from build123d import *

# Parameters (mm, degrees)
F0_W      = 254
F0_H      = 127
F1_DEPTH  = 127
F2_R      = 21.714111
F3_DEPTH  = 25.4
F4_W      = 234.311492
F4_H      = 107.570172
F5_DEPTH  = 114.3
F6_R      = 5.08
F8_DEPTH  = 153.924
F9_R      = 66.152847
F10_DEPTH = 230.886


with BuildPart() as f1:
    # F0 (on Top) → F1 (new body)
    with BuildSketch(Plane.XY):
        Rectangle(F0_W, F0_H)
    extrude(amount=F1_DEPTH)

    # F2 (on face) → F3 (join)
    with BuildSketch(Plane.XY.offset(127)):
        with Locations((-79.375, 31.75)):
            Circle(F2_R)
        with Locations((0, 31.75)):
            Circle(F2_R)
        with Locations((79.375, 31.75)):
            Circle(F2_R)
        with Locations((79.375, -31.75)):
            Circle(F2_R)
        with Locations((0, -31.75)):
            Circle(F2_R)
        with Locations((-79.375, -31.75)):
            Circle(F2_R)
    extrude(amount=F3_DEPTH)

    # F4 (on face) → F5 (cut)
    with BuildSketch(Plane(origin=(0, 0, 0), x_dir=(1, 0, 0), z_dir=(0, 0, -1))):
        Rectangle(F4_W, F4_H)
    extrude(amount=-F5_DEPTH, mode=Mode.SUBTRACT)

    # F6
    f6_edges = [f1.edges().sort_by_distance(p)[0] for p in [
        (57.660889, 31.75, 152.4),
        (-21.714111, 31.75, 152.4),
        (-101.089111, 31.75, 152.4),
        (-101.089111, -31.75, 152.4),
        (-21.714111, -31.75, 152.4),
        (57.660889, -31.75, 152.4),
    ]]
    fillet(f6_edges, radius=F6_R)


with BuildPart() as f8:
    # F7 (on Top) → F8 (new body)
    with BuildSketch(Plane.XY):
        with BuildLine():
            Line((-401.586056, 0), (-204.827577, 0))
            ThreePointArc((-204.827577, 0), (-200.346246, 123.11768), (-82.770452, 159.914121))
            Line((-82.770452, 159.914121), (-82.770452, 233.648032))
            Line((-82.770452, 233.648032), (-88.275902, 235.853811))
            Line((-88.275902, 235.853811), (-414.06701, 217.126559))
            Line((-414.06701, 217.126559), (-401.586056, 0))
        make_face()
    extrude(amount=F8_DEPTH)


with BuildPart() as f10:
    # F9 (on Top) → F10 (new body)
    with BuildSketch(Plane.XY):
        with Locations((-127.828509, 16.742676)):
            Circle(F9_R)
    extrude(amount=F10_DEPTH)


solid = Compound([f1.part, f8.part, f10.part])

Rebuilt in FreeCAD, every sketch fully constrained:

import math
import FreeCAD as App
import Part
import Sketcher
from FreeCAD import Vector
Q = App.Units.Quantity


def edges_at(feature, points):
    """Names of the edges that pass closest to the given points."""
    edges = feature.Shape.Edges
    near = lambda p: min(range(len(edges)), key=lambda i: edges[i].distToShape(Part.Vertex(*p))[0])
    return sorted({f"Edge{near(p) + 1}" for p in points})


def add_polygon(sketch, points):
    """Adds a closed chain of lines whose ends are joined by coincident constraints."""
    first, n = sketch.GeometryCount, len(points)
    for a, b in zip(points, points[1:] + points[:1]):
        sketch.addGeometry(Part.LineSegment(App.Vector(*a, 0), App.Vector(*b, 0)), False)
    for i in range(n):
        sketch.addConstraint(Sketcher.Constraint("Coincident", first + i, 2, first + (i + 1) % n, 1))

doc = App.newDocument("Part")
params = doc.addObject("Spreadsheet::Sheet", "Params")
for row, (alias, value) in enumerate([
    ("sketch1_width", "10 in"),
    ("sketch1_height", "5 in"),
    ("pad1_length", "5 in"),
    ("pad2_length", "1 in"),
    ("pocket1_length", "4.5 in"),
    ("fillet_radius", "0.2 in"),
    ("pad3_length", "6.06 in"),
    ("pad4_length", "9.09 in"),
], start=1):
    params.set(f"A{row}", alias)
    params.set(f"B{row}", "=" + value)
    params.setAlias(f"B{row}", alias)

body = doc.addObject("PartDesign::Body", "Body")

# Sketch on XY plane
sketch1 = body.newObject("Sketcher::SketchObject", "Sketch")
sketch1.AttachmentSupport = (doc.getObject("XY_Plane"), [""])
sketch1.MapMode = "FlatFace"
add_polygon(sketch1, [(-127, 64), (-127, -64), (127, -64), (127, 64)])  # lines 0-3
sketch1.addConstraint([
    Sketcher.Constraint("Vertical", 0),
    Sketcher.Constraint("Horizontal", 1),
    Sketcher.Constraint("Vertical", 2),
    Sketcher.Constraint("Horizontal", 3),
    Sketcher.Constraint("Symmetric", 0, 2, 2, 2, -1, 1),
    Sketcher.Constraint("DistanceX", 1, 1, 1, 2, Q("10 in")),
    Sketcher.Constraint("DistanceY", 0, 2, 0, 1, Q("5 in")),
])
sketch1.setExpression("Constraints[9]", "Params.sketch1_width")
sketch1.setExpression("Constraints[10]", "Params.sketch1_height")
pad1 = body.newObject("PartDesign::Pad", "Pad")
pad1.Profile = sketch1
pad1.setExpression("Length", "Params.pad1_length")

# Sketch on XY plane
sketch2 = body.newObject("Sketcher::SketchObject", "Sketch001")
sketch2.AttachmentSupport = (doc.getObject("XY_Plane"), [""])
sketch2.MapMode = "FlatFace"
sketch2.AttachmentOffset = App.Placement(Vector(0, 0, 5 * 25.4), App.Rotation())
sketch2.addGeometry([
    Part.Circle(Vector(-79, 32, 0), Vector(0, 0, 1), 22),  # 0
    Part.Circle(Vector(0, 32, 0), Vector(0, 0, 1), 22),  # 1
    Part.Circle(Vector(79, 32, 0), Vector(0, 0, 1), 22),  # 2
    Part.Circle(Vector(79, -32, 0), Vector(0, 0, 1), 22),  # 3
    Part.Circle(Vector(0, -32, 0), Vector(0, 0, 1), 22),  # 4
    Part.Circle(Vector(-79, -32, 0), Vector(0, 0, 1), 22),  # 5
], False)
sketch2.addConstraint([
    Sketcher.Constraint("Equal", 0, 1),
    Sketcher.Constraint("Equal", 1, 2),
    Sketcher.Constraint("Equal", 2, 3),
    Sketcher.Constraint("Equal", 3, 4),
    Sketcher.Constraint("Equal", 4, 5),
    Sketcher.Constraint("Symmetric", 0, 3, 3, 3, -1, 1),
    Sketcher.Constraint("Symmetric", 1, 3, 4, 3, -1, 1),
    Sketcher.Constraint("Symmetric", 2, 3, 5, 3, -1, 1),
    Sketcher.Constraint("Symmetric", 0, 3, 2, 3, -2),
    Sketcher.Constraint("PointOnObject", 1, 3, -2),
    Sketcher.Constraint("Horizontal", 0, 3, 1, 3),
    Sketcher.Constraint("DistanceY", 3, 3, 2, 3, Q("2.5 in")),
    Sketcher.Constraint("DistanceX", 0, 3, 2, 3, Q("6.25 in")),
    Sketcher.Constraint("Diameter", 0, Q("43.428222 mm")),
])
pad2 = body.newObject("PartDesign::Pad", "Pad001")
pad2.Profile = sketch2
pad2.setExpression("Length", "Params.pad2_length")

# Sketch on XY plane
sketch3 = body.newObject("Sketcher::SketchObject", "Sketch002")
sketch3.AttachmentSupport = (doc.getObject("XY_Plane"), [""])
sketch3.MapMode = "FlatFace"
add_polygon(sketch3, [(-117, -54), (-117, 54), (117, 54), (117, -54)])  # lines 0-3
sketch3.addConstraint([
    Sketcher.Constraint("Vertical", 0),
    Sketcher.Constraint("Horizontal", 1),
    Sketcher.Constraint("Vertical", 2),
    Sketcher.Constraint("Horizontal", 3),
    Sketcher.Constraint("Symmetric", 0, 2, 2, 2, -1, 1),
    Sketcher.Constraint("DistanceX", 1, 1, 1, 2, Q("234.311492 mm")),
    Sketcher.Constraint("DistanceY", 0, 1, 0, 2, Q("107.570172 mm")),
])
pocket1 = body.newObject("PartDesign::Pocket", "Pocket")
pocket1.Profile = sketch3
pocket1.setExpression("Length", "Params.pocket1_length")
pocket1.Reversed = True
doc.recompute()

fillet = body.newObject("PartDesign::Fillet", "Fillet")
fillet.Base = (pocket1, edges_at(pocket1, [
    (57.661, 31.75, 152.4),
    (-21.714, 31.75, 152.4),
    (-101.089, 31.75, 152.4),
    (-101.089, -31.75, 152.4),
    (-21.714, -31.75, 152.4),
    (57.661, -31.75, 152.4),
]))
fillet.setExpression("Radius", "Params.fillet_radius")
body2 = doc.addObject("PartDesign::Body", "Body001")

# Sketch on XY plane
sketch4 = body2.newObject("Sketcher::SketchObject", "Sketch003")
sketch4.AttachmentSupport = (doc.getObject("XY_Plane001"), [""])
sketch4.MapMode = "FlatFace"
sketch4.addGeometry([
    Part.LineSegment(Vector(-402, 0, 0), Vector(-205, 0, 0)),  # 0
    Part.ArcOfCircle(Part.Circle(Vector(-116, 58, 0), Vector(0, 0, 1), 107), math.radians(72), math.radians(213)),  # 1
    Part.LineSegment(Vector(-83, 160, 0), Vector(-83, 234, 0)),  # 2
    Part.LineSegment(Vector(-83, 234, 0), Vector(-88, 236, 0)),  # 3
    Part.LineSegment(Vector(-88, 236, 0), Vector(-414, 217, 0)),  # 4
    Part.LineSegment(Vector(-414, 217, 0), Vector(-402, 0, 0)),  # 5
], False)
sketch4.addConstraint([
    Sketcher.Constraint("Coincident", 0, 2, 1, 2),
    Sketcher.Constraint("Coincident", 1, 1, 2, 1),
    Sketcher.Constraint("Coincident", 2, 2, 3, 1),
    Sketcher.Constraint("Coincident", 3, 2, 4, 1),
    Sketcher.Constraint("Coincident", 4, 2, 5, 1),
    Sketcher.Constraint("Coincident", 5, 2, 0, 1),
    Sketcher.Constraint("Horizontal", 0),
    Sketcher.Constraint("Vertical", 2),
    Sketcher.Constraint("PointOnObject", 0, 2, -1),
    Sketcher.Constraint("Perpendicular", 4, 5),
    Sketcher.Constraint("Radius", 1, Q("106.68226 mm")),
    Sketcher.Constraint("DistanceY", 1, 3, 2, 2, Q("6.8999002 in")),
    Sketcher.Constraint("DistanceX", 0, 1, 0, 2, Q("196.758479 mm")),
    Sketcher.Constraint("DistanceY", 2, 1, 2, 2, Q("73.733911 mm")),
    Sketcher.Constraint("DistanceX", 1, 3, -1, 1, Q("115.543501 mm")),
    Sketcher.Constraint("DistanceX", 1, 3, 3, 2, Q("27.267599 mm")),
    Sketcher.Constraint("Distance", 3, Q("5.930889 mm")),
    Sketcher.Constraint("Distance", 5, Q("217.484981 mm")),
    Sketcher.Constraint("DistanceY", -1, 1, 1, 1, Q("159.914121 mm")),
])
pad3 = body2.newObject("PartDesign::Pad", "Pad002")
pad3.Profile = sketch4
pad3.setExpression("Length", "Params.pad3_length")
body3 = doc.addObject("PartDesign::Body", "Body002")

# Sketch on XY plane
sketch5 = body3.newObject("Sketcher::SketchObject", "Sketch004")
sketch5.AttachmentSupport = (doc.getObject("XY_Plane002"), [""])
sketch5.MapMode = "FlatFace"
sketch5.addGeometry(Part.Circle(Vector(-128, 17, 0), Vector(0, 0, 1), 66), False)
sketch5.addConstraint([
    Sketcher.Constraint("Diameter", 0, Q("132.305694 mm")),
    Sketcher.Constraint("DistanceX", 0, 3, -1, 1, Q("127.828509 mm")),
    Sketcher.Constraint("DistanceY", -1, 1, 0, 3, Q("16.742676 mm")),
])
pad4 = body3.newObject("PartDesign::Pad", "Pad003")
pad4.Profile = sketch5
pad4.setExpression("Length", "Params.pad4_length")

doc.recompute()
